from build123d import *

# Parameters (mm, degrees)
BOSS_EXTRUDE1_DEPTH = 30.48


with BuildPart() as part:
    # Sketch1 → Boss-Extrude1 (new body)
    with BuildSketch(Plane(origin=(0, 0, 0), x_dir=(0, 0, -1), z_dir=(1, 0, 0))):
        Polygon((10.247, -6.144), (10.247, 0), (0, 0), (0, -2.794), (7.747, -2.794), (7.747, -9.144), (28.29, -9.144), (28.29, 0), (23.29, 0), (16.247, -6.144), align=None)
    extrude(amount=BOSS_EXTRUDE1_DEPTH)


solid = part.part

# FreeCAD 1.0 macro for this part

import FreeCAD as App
import Part
import Sketcher

V = App.Vector
Q = App.Units.Quantity


def add_polygon(sketch, points):
    """Adds a closed chain of lines whose ends are joined by coincident constraints."""
    first, n = sketch.GeometryCount, len(points)
    for a, b in zip(points, points[1:] + points[:1]):
        sketch.addGeometry(Part.LineSegment(App.Vector(*a, 0), App.Vector(*b, 0)), False)
    for i in range(n):
        sketch.addConstraint(Sketcher.Constraint("Coincident", first + i, 2, first + (i + 1) % n, 1))

doc = App.newDocument("Part")
body = doc.addObject("PartDesign::Body", "Body")

sketch1 = body.newObject("Sketcher::SketchObject", "Sketch")
sketch1.AttachmentSupport = (doc.getObject("YZ_Plane"), [""])
sketch1.MapMode = "FlatFace"
add_polygon(sketch1, [(-6.1, -10.2), (0, -10.2), (0, 0), (-2.8, 0), (-2.8, -7.7), (-9.1, -7.7), (-9.1, -28.3), (0, -28.3), (0, -23.3), (-6.1, -16.2)])
sketch1.addConstraint([
    Sketcher.Constraint("Horizontal", 0),
    Sketcher.Constraint("Vertical", 1),
    Sketcher.Constraint("Horizontal", 2),
    Sketcher.Constraint("Vertical", 3),
    Sketcher.Constraint("Horizontal", 4),
    Sketcher.Constraint("Vertical", 5),
    Sketcher.Constraint("Horizontal", 6),
    Sketcher.Constraint("Vertical", 7),
    Sketcher.Constraint("Vertical", 9),
    Sketcher.Constraint("Coincident", 1, 2, -1, 1),
    Sketcher.Constraint("PointOnObject", 6, 2, -2),
    Sketcher.Constraint("DistanceX", 2, 2, 2, 1, Q("0.11 in")),
    Sketcher.Constraint("DistanceX", 4, 2, 4, 1, Q("0.25 in")),
    Sketcher.Constraint("Angle", 8, Q("131.099998 deg")),
    Sketcher.Constraint("DistanceY", 3, 2, 3, 1, Q("0.305 in")),
    Sketcher.Constraint("DistanceX", 0, 1, 0, 2, 6.144),
    Sketcher.Constraint("DistanceY", 1, 1, 1, 2, 10.247),
    Sketcher.Constraint("DistanceY", 5, 2, 5, 1, 20.543),
    Sketcher.Constraint("DistanceY", 7, 1, 7, 2, 5.0),
])
pad1 = body.newObject("PartDesign::Pad", "Pad")
pad1.Profile = sketch1
pad1.Length = Q("1.2 in")

doc.recompute()
